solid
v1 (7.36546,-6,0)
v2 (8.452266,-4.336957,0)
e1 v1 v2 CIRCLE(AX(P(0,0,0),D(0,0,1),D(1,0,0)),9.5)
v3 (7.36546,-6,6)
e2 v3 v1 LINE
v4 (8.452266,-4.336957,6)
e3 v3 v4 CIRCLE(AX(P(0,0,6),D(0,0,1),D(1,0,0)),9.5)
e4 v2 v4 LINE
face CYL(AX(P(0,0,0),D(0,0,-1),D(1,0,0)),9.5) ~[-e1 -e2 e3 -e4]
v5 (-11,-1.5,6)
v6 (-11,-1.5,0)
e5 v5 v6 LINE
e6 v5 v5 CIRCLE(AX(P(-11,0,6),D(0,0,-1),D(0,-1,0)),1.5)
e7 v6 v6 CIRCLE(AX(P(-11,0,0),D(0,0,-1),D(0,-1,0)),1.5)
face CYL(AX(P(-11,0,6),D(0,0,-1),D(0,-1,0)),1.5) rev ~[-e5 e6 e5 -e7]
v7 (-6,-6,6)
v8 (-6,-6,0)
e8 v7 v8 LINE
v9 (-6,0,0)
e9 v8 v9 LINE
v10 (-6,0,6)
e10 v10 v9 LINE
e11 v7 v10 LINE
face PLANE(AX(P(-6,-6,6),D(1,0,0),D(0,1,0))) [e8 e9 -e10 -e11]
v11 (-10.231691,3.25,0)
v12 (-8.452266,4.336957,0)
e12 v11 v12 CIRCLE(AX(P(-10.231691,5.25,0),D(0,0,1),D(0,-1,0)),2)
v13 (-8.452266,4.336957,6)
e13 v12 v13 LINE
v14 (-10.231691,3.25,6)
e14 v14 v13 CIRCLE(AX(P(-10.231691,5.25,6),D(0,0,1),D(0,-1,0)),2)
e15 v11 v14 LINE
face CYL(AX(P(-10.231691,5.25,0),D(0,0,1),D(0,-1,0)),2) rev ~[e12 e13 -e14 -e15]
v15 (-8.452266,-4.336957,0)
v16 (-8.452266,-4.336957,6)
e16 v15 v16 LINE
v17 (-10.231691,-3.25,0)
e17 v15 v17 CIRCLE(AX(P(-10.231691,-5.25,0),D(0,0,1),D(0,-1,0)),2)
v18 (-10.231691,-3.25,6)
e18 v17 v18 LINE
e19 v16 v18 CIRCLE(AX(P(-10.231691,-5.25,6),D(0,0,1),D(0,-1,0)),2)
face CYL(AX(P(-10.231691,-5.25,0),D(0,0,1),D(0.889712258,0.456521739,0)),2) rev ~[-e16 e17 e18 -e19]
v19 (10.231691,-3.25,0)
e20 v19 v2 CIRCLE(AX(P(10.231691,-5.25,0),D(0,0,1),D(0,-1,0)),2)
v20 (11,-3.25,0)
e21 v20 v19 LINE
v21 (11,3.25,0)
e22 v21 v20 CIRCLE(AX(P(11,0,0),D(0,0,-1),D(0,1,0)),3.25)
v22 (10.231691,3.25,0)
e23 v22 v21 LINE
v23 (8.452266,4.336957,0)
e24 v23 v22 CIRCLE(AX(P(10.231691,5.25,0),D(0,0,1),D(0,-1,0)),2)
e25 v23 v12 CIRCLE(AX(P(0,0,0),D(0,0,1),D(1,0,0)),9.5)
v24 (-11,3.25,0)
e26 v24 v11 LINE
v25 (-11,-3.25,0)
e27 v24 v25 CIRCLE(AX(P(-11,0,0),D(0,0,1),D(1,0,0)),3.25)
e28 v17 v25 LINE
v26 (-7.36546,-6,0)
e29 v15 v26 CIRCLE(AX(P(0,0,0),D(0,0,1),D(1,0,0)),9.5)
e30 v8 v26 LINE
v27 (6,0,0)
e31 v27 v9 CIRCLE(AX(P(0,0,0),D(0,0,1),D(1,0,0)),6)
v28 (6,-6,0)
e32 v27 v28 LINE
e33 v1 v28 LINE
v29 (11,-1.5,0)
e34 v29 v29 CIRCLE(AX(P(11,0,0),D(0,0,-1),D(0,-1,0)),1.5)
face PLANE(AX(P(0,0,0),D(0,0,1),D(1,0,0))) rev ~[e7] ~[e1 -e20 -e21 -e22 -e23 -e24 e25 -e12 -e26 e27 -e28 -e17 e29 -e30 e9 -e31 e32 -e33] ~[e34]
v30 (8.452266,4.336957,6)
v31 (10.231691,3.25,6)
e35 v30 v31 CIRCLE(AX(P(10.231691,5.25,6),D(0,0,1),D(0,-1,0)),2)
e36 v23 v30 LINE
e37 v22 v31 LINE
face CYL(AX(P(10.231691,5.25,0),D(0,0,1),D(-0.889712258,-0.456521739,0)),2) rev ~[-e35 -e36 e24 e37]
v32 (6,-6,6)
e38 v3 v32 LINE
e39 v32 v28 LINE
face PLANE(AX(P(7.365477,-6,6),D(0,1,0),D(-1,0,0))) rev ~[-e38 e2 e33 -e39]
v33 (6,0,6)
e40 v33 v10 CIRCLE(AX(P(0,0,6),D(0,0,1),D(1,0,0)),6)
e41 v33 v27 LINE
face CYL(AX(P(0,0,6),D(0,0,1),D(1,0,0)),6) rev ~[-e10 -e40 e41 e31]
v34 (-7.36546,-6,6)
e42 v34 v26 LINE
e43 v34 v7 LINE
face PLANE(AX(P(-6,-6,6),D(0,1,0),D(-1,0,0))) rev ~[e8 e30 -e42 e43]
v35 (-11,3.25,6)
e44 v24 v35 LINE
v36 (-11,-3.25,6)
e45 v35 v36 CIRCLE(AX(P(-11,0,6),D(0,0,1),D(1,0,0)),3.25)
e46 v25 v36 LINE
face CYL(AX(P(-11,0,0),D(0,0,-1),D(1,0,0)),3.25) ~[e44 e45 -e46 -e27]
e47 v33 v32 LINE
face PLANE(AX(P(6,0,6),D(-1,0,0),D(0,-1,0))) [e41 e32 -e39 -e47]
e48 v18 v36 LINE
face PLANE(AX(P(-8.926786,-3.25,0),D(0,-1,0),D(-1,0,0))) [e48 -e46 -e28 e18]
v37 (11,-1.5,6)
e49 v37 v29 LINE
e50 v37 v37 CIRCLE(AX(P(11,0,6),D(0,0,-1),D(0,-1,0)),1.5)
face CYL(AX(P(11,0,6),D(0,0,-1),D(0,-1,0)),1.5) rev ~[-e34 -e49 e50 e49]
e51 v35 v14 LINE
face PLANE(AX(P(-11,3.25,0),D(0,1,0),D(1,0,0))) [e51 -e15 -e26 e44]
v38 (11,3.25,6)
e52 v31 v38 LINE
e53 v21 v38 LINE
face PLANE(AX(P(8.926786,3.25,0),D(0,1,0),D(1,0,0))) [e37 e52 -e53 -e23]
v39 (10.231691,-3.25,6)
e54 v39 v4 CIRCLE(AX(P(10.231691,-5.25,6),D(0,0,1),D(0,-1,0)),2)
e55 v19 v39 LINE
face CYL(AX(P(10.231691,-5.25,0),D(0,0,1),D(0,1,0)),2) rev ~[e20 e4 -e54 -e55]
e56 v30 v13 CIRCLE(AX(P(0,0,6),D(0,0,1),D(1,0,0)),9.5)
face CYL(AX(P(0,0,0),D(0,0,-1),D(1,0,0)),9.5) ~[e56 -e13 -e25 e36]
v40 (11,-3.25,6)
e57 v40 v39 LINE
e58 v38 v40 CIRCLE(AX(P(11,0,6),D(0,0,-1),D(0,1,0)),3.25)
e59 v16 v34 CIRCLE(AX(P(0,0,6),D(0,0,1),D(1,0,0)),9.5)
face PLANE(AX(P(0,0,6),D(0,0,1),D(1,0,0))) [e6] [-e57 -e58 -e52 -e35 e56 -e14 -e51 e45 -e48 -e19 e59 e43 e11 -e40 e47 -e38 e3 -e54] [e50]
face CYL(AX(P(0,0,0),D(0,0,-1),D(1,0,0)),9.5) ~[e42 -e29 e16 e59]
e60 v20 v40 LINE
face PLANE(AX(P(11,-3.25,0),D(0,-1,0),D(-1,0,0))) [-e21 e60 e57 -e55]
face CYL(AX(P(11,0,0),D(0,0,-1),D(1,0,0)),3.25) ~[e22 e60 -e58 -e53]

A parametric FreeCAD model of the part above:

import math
import FreeCAD as App
import Part
import Sketcher

V = App.Vector


def edges_at(feature, points):
    """Names of the edges that pass closest to the given points."""
    edges = feature.Shape.Edges
    near = lambda p: min(range(len(edges)), key=lambda i: edges[i].distToShape(Part.Vertex(*p))[0])
    return sorted({f"Edge{near(p) + 1}" for p in points})

doc = App.newDocument("Part")
body = doc.addObject("PartDesign::Body", "Body")

sketch1 = body.newObject("Sketcher::SketchObject", "Sketch")
sketch1.AttachmentSupport = (doc.getObject("XY_Plane"), [""])
sketch1.MapMode = "FlatFace"
sketch1.addGeometry([
    Part.LineSegment(V(8.926786, -3.25, 0), V(11, -3.25, 0)),
    Part.ArcOfCircle(Part.Circle(V(11, 0, 0), V(0, 0, 1), 3.25), math.radians(-90), math.radians(90)),
    Part.LineSegment(V(11, 3.25, 0), V(8.926786, 3.25, 0)),
    Part.ArcOfCircle(Part.Circle(V(0, 0, 0), V(0, 0, 1), 9.5), math.radians(20.00519), math.radians(159.99481)),
    Part.LineSegment(V(-8.926786, 3.25, 0), V(-11, 3.25, 0)),
    Part.ArcOfCircle(Part.Circle(V(-11, 0, 0), V(0, 0, 1), 3.25), math.radians(90), math.radians(270)),
    Part.LineSegment(V(-11, -3.25, 0), V(-8.926786, -3.25, 0)),
    Part.ArcOfCircle(Part.Circle(V(0, 0, 0), V(0, 0, 1), 9.5), math.radians(-159.99481), math.radians(-20.00519)),
], False)
sketch1.addConstraint([
    Sketcher.Constraint("Tangent", 0, 2, 1, 1),
    Sketcher.Constraint("Tangent", 1, 2, 2, 1),
    Sketcher.Constraint("Coincident", 2, 2, 3, 1),
    Sketcher.Constraint("Coincident", 3, 2, 4, 1),
    Sketcher.Constraint("Tangent", 4, 2, 5, 1),
    Sketcher.Constraint("Tangent", 5, 2, 6, 1),
    Sketcher.Constraint("Coincident", 6, 2, 7, 1),
    Sketcher.Constraint("Coincident", 7, 2, 0, 1),
    Sketcher.Constraint("Horizontal", 0),
    Sketcher.Constraint("Horizontal", 2),
    Sketcher.Constraint("Horizontal", 4),
    Sketcher.Constraint("Horizontal", 6),
    Sketcher.Constraint("Coincident", 3, 3, -1, 1),
    Sketcher.Constraint("Coincident", 7, 3, -1, 1),
    Sketcher.Constraint("Equal", 1, 5),
    Sketcher.Constraint("Equal", 3, 7),
    Sketcher.Constraint("Symmetric", 1, 3, 5, 3, -1, 1),
    Sketcher.Constraint("PointOnObject", 1, 3, -1),
    Sketcher.Constraint("Radius", 3, 9.5),
    Sketcher.Constraint("Radius", 1, 3.25),
    Sketcher.Constraint("DistanceX", -1, 1, 1, 3, 11.0),
])
pad1 = body.newObject("PartDesign::Pad", "Pad")
pad1.Profile = sketch1
pad1.Length = 6

sketch2 = body.newObject("Sketcher::SketchObject", "Sketch001")
sketch2.AttachmentSupport = (doc.getObject("XY_Plane"), [""])
sketch2.MapMode = "FlatFace"
sketch2.AttachmentOffset = App.Placement(V(0, 0, 6), App.Rotation())
sketch2.addGeometry([
    Part.LineSegment(V(-6, -6, 0), V(-8, -6, 0)),
    Part.LineSegment(V(-8, -6, 0), V(-8, -9.5, 0)),
    Part.LineSegment(V(-8, -9.5, 0), V(8, -9.5, 0)),
    Part.LineSegment(V(8, -9.5, 0), V(8, -6, 0)),
    Part.LineSegment(V(8, -6, 0), V(6, -6, 0)),
    Part.LineSegment(V(6, -6, 0), V(6, 0, 0)),
    Part.ArcOfCircle(Part.Circle(V(0, 0, 0), V(0, 0, 1), 6), math.radians(0), math.radians(180)),
    Part.LineSegment(V(-6, 0, 0), V(-6, -6, 0)),
], False)
sketch2.addConstraint([
    Sketcher.Constraint("Coincident", 0, 2, 1, 1),
    Sketcher.Constraint("Coincident", 1, 2, 2, 1),
    Sketcher.Constraint("Coincident", 2, 2, 3, 1),
    Sketcher.Constraint("Coincident", 3, 2, 4, 1),
    Sketcher.Constraint("Coincident", 4, 2, 5, 1),
    Sketcher.Constraint("Tangent", 5, 2, 6, 1),
    Sketcher.Constraint("Tangent", 6, 2, 7, 1),
    Sketcher.Constraint("Coincident", 7, 2, 0, 1),
    Sketcher.Constraint("Horizontal", 0),
    Sketcher.Constraint("Vertical", 1),
    Sketcher.Constraint("Horizontal", 2),
    Sketcher.Constraint("Vertical", 3),
    Sketcher.Constraint("Horizontal", 4),
    Sketcher.Constraint("Vertical", 5),
    Sketcher.Constraint("Vertical", 7),
    Sketcher.Constraint("Coincident", 6, 3, -1, 1),
    Sketcher.Constraint("Symmetric", 0, 2, 3, 2, -2),
    Sketcher.Constraint("Radius", 6, 6.0),
    Sketcher.Constraint("DistanceX", 2, 1, 2, 2, 16.0),
    Sketcher.Constraint("DistanceY", 5, 1, 5, 2, 6.0),
    Sketcher.Constraint("DistanceY", 1, 2, 1, 1, 3.5),
])
pocket1 = body.newObject("PartDesign::Pocket", "Pocket")
pocket1.Profile = sketch2
pocket1.Type = "ThroughAll"
doc.recompute()

fillet = body.newObject("PartDesign::Fillet", "Fillet")
fillet.Base = (pocket1, edges_at(pocket1, [
    (8.927, -3.25, 3),
    (-8.927, -3.25, 3),
    (8.927, 3.25, 3),
    (-8.927, 3.25, 3),
]))
fillet.Radius = 2

sketch3 = body.newObject("Sketcher::SketchObject", "Sketch002")
sketch3.AttachmentSupport = (doc.getObject("XY_Plane"), [""])
sketch3.MapMode = "FlatFace"
sketch3.AttachmentOffset = App.Placement(V(0, 0, 6), App.Rotation())
sketch3.addGeometry([
    Part.Circle(V(-11, 0, 0), V(0, 0, 1), 1.5),
    Part.Circle(V(11, 0, 0), V(0, 0, 1), 1.5),
], False)
sketch3.addConstraint([
    Sketcher.Constraint("Equal", 0, 1),
    Sketcher.Constraint("Symmetric", 0, 3, 1, 3, -1, 1),
    Sketcher.Constraint("PointOnObject", 0, 3, -1),
    Sketcher.Constraint("Diameter", 0, 3.0),
    Sketcher.Constraint("DistanceX", 0, 3, -1, 1, 11.0),
])
doc.recompute()
hole = body.newObject("PartDesign::Hole", "Hole")
hole.Profile = sketch3
hole.ThreadType = "None"
hole.Diameter = 3
hole.DepthType = "ThroughAll"

doc.recompute()
